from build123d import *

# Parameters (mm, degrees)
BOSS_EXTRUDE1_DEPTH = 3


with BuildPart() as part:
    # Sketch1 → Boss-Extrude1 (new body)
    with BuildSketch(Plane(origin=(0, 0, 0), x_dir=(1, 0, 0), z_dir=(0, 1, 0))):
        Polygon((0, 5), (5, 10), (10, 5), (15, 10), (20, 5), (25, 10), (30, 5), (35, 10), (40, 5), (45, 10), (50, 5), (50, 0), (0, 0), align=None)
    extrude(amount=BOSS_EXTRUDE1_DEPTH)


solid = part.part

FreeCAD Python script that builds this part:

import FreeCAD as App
import Part
import Sketcher
from FreeCAD import Vector

doc = App.newDocument("Part")
body = doc.addObject("PartDesign::Body", "Body")

sketch1 = body.newObject("Sketcher::SketchObject", "Sketch")
sketch1.AttachmentSupport = (doc.getObject("XZ_Plane"), [""])
sketch1.MapMode = "FlatFace"
sketch1.addGeometry(Part.LineSegment(Vector(5, -10, 0), Vector(0, -5, 0)), False)
sketch1.addGeometry(Part.LineSegment(Vector(0, -5, 0), Vector(0, 0, 0)), False)
sketch1.addGeometry(Part.LineSegment(Vector(0, 0, 0), Vector(50, 0, 0)), False)
sketch1.addGeometry(Part.LineSegment(Vector(50, 0, 0), Vector(50, -5, 0)), False)
sketch1.addGeometry(Part.LineSegment(Vector(50, -5, 0), Vector(45, -10, 0)), False)
sketch1.addGeometry(Part.LineSegment(Vector(45, -10, 0), Vector(40, -5, 0)), False)
sketch1.addGeometry(Part.LineSegment(Vector(40, -5, 0), Vector(35, -10, 0)), False)
sketch1.addGeometry(Part.LineSegment(Vector(35, -10, 0), Vector(30, -5, 0)), False)
sketch1.addGeometry(Part.LineSegment(Vector(30, -5, 0), Vector(25, -10, 0)), False)
sketch1.addGeometry(Part.LineSegment(Vector(25, -10, 0), Vector(20, -5, 0)), False)
sketch1.addGeometry(Part.LineSegment(Vector(20, -5, 0), Vector(15, -10, 0)), False)
sketch1.addGeometry(Part.LineSegment(Vector(15, -10, 0), Vector(10, -5, 0)), False)
sketch1.addGeometry(Part.LineSegment(Vector(10, -5, 0), Vector(5, -10, 0)), False)
sketch1.addConstraint(Sketcher.Constraint("Coincident", 0, 2, 1, 1))
sketch1.addConstraint(Sketcher.Constraint("Coincident", 1, 2, 2, 1))
sketch1.addConstraint(Sketcher.Constraint("Coincident", 2, 2, 3, 1))
sketch1.addConstraint(Sketcher.Constraint("Coincident", 3, 2, 4, 1))
sketch1.addConstraint(Sketcher.Constraint("Coincident", 4, 2, 5, 1))
sketch1.addConstraint(Sketcher.Constraint("Coincident", 5, 2, 6, 1))
sketch1.addConstraint(Sketcher.Constraint("Coincident", 6, 2, 7, 1))
sketch1.addConstraint(Sketcher.Constraint("Coincident", 7, 2, 8, 1))
sketch1.addConstraint(Sketcher.Constraint("Coincident", 8, 2, 9, 1))
sketch1.addConstraint(Sketcher.Constraint("Coincident", 9, 2, 10, 1))
sketch1.addConstraint(Sketcher.Constraint("Coincident", 10, 2, 11, 1))
sketch1.addConstraint(Sketcher.Constraint("Coincident", 11, 2, 12, 1))
sketch1.addConstraint(Sketcher.Constraint("Coincident", 12, 2, 0, 1))
sketch1.addConstraint(Sketcher.Constraint("Vertical", 1))
sketch1.addConstraint(Sketcher.Constraint("Horizontal", 2))
sketch1.addConstraint(Sketcher.Constraint("Vertical", 3))
sketch1.addConstraint(Sketcher.Constraint("Coincident", 1, 2, -1, 1))
sketch1.addConstraint(Sketcher.Constraint("Perpendicular", 0, 4))
sketch1.addConstraint(Sketcher.Constraint("Perpendicular", 4, 5))
sketch1.addConstraint(Sketcher.Constraint("Perpendicular", 5, 6))
sketch1.addConstraint(Sketcher.Constraint("Perpendicular", 6, 7))
sketch1.addConstraint(Sketcher.Constraint("Perpendicular", 7, 8))
sketch1.addConstraint(Sketcher.Constraint("Perpendicular", 8, 9))
sketch1.addConstraint(Sketcher.Constraint("Perpendicular", 9, 10))
sketch1.addConstraint(Sketcher.Constraint("Perpendicular", 10, 11))
sketch1.addConstraint(Sketcher.Constraint("Perpendicular", 11, 12))
sketch1.addConstraint(Sketcher.Constraint("Horizontal", 0, 2, 3, 2))
sketch1.addConstraint(Sketcher.Constraint("Horizontal", 3, 2, 5, 2))
sketch1.addConstraint(Sketcher.Constraint("Horizontal", 4, 2, 6, 2))
sketch1.addConstraint(Sketcher.Constraint("Horizontal", 5, 2, 7, 2))
sketch1.addConstraint(Sketcher.Constraint("Horizontal", 6, 2, 8, 2))
sketch1.addConstraint(Sketcher.Constraint("Horizontal", 7, 2, 9, 2))
sketch1.addConstraint(Sketcher.Constraint("Horizontal", 8, 2, 10, 2))
sketch1.addConstraint(Sketcher.Constraint("Horizontal", 9, 2, 11, 2))
sketch1.addConstraint(Sketcher.Constraint("Horizontal", 10, 2, 12, 2))
sketch1.addConstraint(Sketcher.Constraint("Equal", 0, 4))
sketch1.addConstraint(Sketcher.Constraint("DistanceX", 2, 1, 2, 2, 50.0))
sketch1.addConstraint(Sketcher.Constraint("DistanceY", 1, 1, 1, 2, 5.0))
pad1 = body.newObject("PartDesign::Pad", "Pad")
pad1.Profile = sketch1
pad1.Length = 3
pad1.Reversed = True

doc.recompute()
